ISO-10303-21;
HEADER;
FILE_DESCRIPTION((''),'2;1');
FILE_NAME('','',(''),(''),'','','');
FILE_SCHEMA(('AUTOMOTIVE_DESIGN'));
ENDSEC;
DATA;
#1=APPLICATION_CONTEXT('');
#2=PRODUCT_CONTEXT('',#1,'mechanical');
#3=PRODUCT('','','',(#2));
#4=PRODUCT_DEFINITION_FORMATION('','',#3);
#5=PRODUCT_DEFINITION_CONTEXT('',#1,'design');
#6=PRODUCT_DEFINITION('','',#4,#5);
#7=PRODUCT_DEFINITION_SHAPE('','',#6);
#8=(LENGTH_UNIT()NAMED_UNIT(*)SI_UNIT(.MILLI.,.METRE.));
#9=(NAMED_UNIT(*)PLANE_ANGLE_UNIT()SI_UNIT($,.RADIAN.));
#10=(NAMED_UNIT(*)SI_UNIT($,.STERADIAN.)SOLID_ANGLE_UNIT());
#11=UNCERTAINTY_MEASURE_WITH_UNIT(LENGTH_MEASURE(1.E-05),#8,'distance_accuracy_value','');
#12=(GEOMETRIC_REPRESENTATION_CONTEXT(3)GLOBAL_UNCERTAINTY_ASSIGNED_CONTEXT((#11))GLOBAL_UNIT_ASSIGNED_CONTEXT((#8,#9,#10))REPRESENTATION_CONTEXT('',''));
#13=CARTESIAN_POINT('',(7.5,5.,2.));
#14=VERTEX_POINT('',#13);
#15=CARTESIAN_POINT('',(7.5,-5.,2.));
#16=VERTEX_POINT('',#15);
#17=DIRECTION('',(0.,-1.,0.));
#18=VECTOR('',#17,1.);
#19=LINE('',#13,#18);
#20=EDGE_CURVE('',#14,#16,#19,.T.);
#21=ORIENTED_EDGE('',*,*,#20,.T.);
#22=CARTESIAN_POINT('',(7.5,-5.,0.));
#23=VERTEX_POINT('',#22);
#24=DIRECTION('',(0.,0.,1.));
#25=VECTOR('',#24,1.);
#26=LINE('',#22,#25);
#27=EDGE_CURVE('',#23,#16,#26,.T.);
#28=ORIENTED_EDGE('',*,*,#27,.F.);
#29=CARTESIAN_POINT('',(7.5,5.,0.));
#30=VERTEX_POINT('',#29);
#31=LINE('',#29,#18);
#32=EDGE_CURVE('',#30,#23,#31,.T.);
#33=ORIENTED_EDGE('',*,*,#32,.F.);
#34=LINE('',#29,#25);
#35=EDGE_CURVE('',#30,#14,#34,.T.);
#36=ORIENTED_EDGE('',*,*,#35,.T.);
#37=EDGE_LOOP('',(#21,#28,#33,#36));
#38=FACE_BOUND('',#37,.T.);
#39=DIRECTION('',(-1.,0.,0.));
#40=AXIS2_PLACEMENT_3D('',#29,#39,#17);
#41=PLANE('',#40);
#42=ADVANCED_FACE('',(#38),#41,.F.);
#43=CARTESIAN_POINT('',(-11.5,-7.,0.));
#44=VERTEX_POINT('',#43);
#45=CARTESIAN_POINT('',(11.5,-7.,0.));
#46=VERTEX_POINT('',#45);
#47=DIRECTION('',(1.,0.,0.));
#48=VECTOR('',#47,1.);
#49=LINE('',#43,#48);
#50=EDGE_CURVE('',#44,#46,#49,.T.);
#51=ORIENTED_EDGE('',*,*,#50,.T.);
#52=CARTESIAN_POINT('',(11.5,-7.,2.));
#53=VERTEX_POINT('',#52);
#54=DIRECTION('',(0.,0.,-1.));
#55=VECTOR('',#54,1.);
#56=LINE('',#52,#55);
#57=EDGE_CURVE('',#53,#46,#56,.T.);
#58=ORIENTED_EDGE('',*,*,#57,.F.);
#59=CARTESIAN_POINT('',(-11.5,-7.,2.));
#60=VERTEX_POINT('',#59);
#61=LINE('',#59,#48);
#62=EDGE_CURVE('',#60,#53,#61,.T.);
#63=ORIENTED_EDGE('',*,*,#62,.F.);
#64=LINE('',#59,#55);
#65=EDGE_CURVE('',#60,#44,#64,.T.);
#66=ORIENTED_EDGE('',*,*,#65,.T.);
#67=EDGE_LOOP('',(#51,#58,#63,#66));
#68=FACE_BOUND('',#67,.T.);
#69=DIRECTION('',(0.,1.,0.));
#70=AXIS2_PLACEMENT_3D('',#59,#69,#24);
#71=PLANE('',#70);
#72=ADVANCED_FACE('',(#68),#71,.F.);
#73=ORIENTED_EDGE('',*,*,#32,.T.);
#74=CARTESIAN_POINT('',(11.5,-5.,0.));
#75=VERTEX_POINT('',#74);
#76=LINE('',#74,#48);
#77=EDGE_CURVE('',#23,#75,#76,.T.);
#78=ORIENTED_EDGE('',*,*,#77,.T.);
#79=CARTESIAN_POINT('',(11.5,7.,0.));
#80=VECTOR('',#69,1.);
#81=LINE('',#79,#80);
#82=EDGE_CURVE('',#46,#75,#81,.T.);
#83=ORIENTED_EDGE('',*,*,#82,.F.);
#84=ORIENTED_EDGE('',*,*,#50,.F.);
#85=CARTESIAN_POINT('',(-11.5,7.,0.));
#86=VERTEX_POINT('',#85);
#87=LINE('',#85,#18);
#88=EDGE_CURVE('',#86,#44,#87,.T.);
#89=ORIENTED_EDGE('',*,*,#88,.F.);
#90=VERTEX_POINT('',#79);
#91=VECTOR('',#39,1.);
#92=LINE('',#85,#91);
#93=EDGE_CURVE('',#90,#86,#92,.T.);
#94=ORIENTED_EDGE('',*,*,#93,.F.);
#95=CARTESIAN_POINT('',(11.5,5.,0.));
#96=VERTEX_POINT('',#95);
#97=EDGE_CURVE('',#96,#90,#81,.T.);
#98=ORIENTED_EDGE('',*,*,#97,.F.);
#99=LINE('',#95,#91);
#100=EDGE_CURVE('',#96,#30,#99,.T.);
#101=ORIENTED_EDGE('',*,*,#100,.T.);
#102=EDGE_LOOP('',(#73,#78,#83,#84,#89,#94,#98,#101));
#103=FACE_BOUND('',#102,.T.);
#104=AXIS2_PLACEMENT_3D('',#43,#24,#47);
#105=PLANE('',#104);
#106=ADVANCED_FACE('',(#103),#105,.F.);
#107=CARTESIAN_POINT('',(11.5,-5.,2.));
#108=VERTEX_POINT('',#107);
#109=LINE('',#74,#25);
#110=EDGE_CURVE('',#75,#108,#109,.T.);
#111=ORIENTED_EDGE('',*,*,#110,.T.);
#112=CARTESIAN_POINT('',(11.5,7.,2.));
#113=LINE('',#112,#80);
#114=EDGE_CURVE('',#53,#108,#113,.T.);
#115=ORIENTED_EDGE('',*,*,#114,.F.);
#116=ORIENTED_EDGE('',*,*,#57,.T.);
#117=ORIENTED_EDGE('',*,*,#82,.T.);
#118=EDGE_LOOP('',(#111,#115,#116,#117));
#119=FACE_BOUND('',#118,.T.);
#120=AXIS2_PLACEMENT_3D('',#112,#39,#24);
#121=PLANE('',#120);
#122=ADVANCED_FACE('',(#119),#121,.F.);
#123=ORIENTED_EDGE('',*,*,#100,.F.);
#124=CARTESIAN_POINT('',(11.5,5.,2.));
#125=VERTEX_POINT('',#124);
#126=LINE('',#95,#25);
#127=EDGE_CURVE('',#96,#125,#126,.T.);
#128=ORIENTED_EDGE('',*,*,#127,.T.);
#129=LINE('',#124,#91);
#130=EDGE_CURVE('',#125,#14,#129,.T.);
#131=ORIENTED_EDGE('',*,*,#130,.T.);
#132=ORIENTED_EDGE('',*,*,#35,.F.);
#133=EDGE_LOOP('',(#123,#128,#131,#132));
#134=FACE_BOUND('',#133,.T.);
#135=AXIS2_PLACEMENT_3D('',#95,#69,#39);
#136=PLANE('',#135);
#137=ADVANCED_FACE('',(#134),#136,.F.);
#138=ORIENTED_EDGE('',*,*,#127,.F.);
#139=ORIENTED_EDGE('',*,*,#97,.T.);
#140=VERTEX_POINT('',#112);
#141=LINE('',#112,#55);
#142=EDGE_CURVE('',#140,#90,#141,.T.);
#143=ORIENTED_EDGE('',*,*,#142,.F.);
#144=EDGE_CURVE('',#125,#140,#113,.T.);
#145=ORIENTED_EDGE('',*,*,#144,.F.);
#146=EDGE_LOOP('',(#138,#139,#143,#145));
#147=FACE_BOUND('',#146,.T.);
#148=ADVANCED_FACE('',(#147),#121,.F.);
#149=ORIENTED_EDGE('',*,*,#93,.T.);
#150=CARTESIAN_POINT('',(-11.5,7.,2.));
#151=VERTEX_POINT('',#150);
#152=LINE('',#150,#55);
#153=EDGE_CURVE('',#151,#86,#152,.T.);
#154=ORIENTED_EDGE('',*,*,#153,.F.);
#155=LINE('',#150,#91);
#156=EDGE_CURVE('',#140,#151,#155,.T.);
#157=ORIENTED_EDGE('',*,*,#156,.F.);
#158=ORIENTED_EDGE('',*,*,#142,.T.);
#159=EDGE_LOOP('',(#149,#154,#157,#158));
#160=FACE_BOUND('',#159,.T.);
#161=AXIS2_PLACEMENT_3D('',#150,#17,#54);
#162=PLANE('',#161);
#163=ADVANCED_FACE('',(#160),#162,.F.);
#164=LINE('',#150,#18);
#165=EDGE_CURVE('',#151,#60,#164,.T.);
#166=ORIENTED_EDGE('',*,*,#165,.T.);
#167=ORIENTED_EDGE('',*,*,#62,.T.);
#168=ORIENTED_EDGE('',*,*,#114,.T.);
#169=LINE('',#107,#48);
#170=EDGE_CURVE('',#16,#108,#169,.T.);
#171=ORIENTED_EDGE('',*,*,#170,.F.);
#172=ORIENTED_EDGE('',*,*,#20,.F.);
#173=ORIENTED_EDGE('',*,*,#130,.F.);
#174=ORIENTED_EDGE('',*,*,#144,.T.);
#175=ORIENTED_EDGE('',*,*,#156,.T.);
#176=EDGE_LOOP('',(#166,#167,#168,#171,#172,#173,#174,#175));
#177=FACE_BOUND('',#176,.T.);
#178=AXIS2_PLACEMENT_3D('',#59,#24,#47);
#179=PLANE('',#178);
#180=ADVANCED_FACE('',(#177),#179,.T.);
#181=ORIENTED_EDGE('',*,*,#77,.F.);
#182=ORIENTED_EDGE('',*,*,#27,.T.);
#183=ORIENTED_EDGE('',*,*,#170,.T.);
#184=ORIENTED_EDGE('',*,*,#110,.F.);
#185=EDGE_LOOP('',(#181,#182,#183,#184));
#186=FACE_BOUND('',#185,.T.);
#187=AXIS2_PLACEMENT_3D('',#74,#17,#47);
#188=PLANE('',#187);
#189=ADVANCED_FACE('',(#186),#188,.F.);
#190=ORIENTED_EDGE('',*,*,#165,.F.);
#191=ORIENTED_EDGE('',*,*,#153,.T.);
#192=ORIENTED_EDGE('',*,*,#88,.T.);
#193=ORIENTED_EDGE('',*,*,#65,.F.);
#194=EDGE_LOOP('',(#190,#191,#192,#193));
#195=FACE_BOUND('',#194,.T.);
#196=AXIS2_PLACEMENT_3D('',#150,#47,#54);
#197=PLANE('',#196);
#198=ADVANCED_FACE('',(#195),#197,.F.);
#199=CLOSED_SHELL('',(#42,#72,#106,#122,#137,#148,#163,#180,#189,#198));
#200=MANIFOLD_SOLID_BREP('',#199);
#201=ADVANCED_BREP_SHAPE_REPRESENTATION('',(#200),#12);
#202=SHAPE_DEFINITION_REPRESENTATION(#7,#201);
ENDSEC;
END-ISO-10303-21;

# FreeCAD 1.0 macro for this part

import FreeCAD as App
import Part
import Sketcher

V = App.Vector

doc = App.newDocument("Part")
body = doc.addObject("PartDesign::Body", "Body")

# Sketch on XY plane
sketch1 = doc.addObject("Sketcher::SketchObject", "Sketch")
body.addObject(sketch1)
sketch1.AttachmentSupport = (doc.XY_Plane, [""])
sketch1.MapMode = "FlatFace"
sketch1.addGeometry([
    Part.LineSegment(V(-12, 7, 0), V(-12, -7, 0)),
    Part.LineSegment(V(-12, -7, 0), V(12, -7, 0)),
    Part.LineSegment(V(12, -7, 0), V(12, 7, 0)),
    Part.LineSegment(V(12, 7, 0), V(-12, 7, 0)),
], False)
sketch1.addConstraint([
    Sketcher.Constraint("Coincident", 0, 2, 1, 1),
    Sketcher.Constraint("Coincident", 1, 2, 2, 1),
    Sketcher.Constraint("Coincident", 2, 2, 3, 1),
    Sketcher.Constraint("Coincident", 3, 2, 0, 1),
    Sketcher.Constraint("Vertical", 0),
    Sketcher.Constraint("Horizontal", 1),
    Sketcher.Constraint("Vertical", 2),
    Sketcher.Constraint("Horizontal", 3),
    Sketcher.Constraint("Symmetric", 0, 2, 2, 2, -1, 1),
    Sketcher.Constraint("DistanceX", 1, 1, 1, 2, 23.0),
    Sketcher.Constraint("DistanceY", 0, 2, 0, 1, 14.0),
])
pad1 = doc.addObject("PartDesign::Pad", "Pad")
body.addObject(pad1)
pad1.Profile = sketch1
pad1.Length = 2

# Sketch on XY plane
sketch2 = doc.addObject("Sketcher::SketchObject", "Sketch001")
body.addObject(sketch2)
sketch2.AttachmentSupport = (doc.XY_Plane, [""])
sketch2.MapMode = "FlatFace"
sketch2.AttachmentOffset = App.Placement(V(0, 0, 2), App.Rotation())
sketch2.addGeometry([
    Part.LineSegment(V(7.5, 5, 0), V(7.5, -5, 0)),
    Part.LineSegment(V(7.5, -5, 0), V(11.5, -5, 0)),
    Part.LineSegment(V(11.5, -5, 0), V(11.5, 5, 0)),
    Part.LineSegment(V(11.5, 5, 0), V(7.5, 5, 0)),
], False)
sketch2.addConstraint([
    Sketcher.Constraint("Coincident", 0, 2, 1, 1),
    Sketcher.Constraint("Coincident", 1, 2, 2, 1),
    Sketcher.Constraint("Coincident", 2, 2, 3, 1),
    Sketcher.Constraint("Coincident", 3, 2, 0, 1),
    Sketcher.Constraint("Vertical", 0),
    Sketcher.Constraint("Horizontal", 1),
    Sketcher.Constraint("Vertical", 2),
    Sketcher.Constraint("Horizontal", 3),
    Sketcher.Constraint("DistanceX", 1, 1, 1, 2, 4.0),
    Sketcher.Constraint("DistanceY", 0, 2, 0, 1, 10.0),
    Sketcher.Constraint("DistanceY", 0, 2, -1, 1, 5.0),
    Sketcher.Constraint("DistanceX", -1, 1, 0, 2, 7.5),
])
pocket1 = doc.addObject("PartDesign::Pocket", "Pocket")
body.addObject(pocket1)
pocket1.Profile = sketch2
pocket1.Length = 2

doc.recompute()
